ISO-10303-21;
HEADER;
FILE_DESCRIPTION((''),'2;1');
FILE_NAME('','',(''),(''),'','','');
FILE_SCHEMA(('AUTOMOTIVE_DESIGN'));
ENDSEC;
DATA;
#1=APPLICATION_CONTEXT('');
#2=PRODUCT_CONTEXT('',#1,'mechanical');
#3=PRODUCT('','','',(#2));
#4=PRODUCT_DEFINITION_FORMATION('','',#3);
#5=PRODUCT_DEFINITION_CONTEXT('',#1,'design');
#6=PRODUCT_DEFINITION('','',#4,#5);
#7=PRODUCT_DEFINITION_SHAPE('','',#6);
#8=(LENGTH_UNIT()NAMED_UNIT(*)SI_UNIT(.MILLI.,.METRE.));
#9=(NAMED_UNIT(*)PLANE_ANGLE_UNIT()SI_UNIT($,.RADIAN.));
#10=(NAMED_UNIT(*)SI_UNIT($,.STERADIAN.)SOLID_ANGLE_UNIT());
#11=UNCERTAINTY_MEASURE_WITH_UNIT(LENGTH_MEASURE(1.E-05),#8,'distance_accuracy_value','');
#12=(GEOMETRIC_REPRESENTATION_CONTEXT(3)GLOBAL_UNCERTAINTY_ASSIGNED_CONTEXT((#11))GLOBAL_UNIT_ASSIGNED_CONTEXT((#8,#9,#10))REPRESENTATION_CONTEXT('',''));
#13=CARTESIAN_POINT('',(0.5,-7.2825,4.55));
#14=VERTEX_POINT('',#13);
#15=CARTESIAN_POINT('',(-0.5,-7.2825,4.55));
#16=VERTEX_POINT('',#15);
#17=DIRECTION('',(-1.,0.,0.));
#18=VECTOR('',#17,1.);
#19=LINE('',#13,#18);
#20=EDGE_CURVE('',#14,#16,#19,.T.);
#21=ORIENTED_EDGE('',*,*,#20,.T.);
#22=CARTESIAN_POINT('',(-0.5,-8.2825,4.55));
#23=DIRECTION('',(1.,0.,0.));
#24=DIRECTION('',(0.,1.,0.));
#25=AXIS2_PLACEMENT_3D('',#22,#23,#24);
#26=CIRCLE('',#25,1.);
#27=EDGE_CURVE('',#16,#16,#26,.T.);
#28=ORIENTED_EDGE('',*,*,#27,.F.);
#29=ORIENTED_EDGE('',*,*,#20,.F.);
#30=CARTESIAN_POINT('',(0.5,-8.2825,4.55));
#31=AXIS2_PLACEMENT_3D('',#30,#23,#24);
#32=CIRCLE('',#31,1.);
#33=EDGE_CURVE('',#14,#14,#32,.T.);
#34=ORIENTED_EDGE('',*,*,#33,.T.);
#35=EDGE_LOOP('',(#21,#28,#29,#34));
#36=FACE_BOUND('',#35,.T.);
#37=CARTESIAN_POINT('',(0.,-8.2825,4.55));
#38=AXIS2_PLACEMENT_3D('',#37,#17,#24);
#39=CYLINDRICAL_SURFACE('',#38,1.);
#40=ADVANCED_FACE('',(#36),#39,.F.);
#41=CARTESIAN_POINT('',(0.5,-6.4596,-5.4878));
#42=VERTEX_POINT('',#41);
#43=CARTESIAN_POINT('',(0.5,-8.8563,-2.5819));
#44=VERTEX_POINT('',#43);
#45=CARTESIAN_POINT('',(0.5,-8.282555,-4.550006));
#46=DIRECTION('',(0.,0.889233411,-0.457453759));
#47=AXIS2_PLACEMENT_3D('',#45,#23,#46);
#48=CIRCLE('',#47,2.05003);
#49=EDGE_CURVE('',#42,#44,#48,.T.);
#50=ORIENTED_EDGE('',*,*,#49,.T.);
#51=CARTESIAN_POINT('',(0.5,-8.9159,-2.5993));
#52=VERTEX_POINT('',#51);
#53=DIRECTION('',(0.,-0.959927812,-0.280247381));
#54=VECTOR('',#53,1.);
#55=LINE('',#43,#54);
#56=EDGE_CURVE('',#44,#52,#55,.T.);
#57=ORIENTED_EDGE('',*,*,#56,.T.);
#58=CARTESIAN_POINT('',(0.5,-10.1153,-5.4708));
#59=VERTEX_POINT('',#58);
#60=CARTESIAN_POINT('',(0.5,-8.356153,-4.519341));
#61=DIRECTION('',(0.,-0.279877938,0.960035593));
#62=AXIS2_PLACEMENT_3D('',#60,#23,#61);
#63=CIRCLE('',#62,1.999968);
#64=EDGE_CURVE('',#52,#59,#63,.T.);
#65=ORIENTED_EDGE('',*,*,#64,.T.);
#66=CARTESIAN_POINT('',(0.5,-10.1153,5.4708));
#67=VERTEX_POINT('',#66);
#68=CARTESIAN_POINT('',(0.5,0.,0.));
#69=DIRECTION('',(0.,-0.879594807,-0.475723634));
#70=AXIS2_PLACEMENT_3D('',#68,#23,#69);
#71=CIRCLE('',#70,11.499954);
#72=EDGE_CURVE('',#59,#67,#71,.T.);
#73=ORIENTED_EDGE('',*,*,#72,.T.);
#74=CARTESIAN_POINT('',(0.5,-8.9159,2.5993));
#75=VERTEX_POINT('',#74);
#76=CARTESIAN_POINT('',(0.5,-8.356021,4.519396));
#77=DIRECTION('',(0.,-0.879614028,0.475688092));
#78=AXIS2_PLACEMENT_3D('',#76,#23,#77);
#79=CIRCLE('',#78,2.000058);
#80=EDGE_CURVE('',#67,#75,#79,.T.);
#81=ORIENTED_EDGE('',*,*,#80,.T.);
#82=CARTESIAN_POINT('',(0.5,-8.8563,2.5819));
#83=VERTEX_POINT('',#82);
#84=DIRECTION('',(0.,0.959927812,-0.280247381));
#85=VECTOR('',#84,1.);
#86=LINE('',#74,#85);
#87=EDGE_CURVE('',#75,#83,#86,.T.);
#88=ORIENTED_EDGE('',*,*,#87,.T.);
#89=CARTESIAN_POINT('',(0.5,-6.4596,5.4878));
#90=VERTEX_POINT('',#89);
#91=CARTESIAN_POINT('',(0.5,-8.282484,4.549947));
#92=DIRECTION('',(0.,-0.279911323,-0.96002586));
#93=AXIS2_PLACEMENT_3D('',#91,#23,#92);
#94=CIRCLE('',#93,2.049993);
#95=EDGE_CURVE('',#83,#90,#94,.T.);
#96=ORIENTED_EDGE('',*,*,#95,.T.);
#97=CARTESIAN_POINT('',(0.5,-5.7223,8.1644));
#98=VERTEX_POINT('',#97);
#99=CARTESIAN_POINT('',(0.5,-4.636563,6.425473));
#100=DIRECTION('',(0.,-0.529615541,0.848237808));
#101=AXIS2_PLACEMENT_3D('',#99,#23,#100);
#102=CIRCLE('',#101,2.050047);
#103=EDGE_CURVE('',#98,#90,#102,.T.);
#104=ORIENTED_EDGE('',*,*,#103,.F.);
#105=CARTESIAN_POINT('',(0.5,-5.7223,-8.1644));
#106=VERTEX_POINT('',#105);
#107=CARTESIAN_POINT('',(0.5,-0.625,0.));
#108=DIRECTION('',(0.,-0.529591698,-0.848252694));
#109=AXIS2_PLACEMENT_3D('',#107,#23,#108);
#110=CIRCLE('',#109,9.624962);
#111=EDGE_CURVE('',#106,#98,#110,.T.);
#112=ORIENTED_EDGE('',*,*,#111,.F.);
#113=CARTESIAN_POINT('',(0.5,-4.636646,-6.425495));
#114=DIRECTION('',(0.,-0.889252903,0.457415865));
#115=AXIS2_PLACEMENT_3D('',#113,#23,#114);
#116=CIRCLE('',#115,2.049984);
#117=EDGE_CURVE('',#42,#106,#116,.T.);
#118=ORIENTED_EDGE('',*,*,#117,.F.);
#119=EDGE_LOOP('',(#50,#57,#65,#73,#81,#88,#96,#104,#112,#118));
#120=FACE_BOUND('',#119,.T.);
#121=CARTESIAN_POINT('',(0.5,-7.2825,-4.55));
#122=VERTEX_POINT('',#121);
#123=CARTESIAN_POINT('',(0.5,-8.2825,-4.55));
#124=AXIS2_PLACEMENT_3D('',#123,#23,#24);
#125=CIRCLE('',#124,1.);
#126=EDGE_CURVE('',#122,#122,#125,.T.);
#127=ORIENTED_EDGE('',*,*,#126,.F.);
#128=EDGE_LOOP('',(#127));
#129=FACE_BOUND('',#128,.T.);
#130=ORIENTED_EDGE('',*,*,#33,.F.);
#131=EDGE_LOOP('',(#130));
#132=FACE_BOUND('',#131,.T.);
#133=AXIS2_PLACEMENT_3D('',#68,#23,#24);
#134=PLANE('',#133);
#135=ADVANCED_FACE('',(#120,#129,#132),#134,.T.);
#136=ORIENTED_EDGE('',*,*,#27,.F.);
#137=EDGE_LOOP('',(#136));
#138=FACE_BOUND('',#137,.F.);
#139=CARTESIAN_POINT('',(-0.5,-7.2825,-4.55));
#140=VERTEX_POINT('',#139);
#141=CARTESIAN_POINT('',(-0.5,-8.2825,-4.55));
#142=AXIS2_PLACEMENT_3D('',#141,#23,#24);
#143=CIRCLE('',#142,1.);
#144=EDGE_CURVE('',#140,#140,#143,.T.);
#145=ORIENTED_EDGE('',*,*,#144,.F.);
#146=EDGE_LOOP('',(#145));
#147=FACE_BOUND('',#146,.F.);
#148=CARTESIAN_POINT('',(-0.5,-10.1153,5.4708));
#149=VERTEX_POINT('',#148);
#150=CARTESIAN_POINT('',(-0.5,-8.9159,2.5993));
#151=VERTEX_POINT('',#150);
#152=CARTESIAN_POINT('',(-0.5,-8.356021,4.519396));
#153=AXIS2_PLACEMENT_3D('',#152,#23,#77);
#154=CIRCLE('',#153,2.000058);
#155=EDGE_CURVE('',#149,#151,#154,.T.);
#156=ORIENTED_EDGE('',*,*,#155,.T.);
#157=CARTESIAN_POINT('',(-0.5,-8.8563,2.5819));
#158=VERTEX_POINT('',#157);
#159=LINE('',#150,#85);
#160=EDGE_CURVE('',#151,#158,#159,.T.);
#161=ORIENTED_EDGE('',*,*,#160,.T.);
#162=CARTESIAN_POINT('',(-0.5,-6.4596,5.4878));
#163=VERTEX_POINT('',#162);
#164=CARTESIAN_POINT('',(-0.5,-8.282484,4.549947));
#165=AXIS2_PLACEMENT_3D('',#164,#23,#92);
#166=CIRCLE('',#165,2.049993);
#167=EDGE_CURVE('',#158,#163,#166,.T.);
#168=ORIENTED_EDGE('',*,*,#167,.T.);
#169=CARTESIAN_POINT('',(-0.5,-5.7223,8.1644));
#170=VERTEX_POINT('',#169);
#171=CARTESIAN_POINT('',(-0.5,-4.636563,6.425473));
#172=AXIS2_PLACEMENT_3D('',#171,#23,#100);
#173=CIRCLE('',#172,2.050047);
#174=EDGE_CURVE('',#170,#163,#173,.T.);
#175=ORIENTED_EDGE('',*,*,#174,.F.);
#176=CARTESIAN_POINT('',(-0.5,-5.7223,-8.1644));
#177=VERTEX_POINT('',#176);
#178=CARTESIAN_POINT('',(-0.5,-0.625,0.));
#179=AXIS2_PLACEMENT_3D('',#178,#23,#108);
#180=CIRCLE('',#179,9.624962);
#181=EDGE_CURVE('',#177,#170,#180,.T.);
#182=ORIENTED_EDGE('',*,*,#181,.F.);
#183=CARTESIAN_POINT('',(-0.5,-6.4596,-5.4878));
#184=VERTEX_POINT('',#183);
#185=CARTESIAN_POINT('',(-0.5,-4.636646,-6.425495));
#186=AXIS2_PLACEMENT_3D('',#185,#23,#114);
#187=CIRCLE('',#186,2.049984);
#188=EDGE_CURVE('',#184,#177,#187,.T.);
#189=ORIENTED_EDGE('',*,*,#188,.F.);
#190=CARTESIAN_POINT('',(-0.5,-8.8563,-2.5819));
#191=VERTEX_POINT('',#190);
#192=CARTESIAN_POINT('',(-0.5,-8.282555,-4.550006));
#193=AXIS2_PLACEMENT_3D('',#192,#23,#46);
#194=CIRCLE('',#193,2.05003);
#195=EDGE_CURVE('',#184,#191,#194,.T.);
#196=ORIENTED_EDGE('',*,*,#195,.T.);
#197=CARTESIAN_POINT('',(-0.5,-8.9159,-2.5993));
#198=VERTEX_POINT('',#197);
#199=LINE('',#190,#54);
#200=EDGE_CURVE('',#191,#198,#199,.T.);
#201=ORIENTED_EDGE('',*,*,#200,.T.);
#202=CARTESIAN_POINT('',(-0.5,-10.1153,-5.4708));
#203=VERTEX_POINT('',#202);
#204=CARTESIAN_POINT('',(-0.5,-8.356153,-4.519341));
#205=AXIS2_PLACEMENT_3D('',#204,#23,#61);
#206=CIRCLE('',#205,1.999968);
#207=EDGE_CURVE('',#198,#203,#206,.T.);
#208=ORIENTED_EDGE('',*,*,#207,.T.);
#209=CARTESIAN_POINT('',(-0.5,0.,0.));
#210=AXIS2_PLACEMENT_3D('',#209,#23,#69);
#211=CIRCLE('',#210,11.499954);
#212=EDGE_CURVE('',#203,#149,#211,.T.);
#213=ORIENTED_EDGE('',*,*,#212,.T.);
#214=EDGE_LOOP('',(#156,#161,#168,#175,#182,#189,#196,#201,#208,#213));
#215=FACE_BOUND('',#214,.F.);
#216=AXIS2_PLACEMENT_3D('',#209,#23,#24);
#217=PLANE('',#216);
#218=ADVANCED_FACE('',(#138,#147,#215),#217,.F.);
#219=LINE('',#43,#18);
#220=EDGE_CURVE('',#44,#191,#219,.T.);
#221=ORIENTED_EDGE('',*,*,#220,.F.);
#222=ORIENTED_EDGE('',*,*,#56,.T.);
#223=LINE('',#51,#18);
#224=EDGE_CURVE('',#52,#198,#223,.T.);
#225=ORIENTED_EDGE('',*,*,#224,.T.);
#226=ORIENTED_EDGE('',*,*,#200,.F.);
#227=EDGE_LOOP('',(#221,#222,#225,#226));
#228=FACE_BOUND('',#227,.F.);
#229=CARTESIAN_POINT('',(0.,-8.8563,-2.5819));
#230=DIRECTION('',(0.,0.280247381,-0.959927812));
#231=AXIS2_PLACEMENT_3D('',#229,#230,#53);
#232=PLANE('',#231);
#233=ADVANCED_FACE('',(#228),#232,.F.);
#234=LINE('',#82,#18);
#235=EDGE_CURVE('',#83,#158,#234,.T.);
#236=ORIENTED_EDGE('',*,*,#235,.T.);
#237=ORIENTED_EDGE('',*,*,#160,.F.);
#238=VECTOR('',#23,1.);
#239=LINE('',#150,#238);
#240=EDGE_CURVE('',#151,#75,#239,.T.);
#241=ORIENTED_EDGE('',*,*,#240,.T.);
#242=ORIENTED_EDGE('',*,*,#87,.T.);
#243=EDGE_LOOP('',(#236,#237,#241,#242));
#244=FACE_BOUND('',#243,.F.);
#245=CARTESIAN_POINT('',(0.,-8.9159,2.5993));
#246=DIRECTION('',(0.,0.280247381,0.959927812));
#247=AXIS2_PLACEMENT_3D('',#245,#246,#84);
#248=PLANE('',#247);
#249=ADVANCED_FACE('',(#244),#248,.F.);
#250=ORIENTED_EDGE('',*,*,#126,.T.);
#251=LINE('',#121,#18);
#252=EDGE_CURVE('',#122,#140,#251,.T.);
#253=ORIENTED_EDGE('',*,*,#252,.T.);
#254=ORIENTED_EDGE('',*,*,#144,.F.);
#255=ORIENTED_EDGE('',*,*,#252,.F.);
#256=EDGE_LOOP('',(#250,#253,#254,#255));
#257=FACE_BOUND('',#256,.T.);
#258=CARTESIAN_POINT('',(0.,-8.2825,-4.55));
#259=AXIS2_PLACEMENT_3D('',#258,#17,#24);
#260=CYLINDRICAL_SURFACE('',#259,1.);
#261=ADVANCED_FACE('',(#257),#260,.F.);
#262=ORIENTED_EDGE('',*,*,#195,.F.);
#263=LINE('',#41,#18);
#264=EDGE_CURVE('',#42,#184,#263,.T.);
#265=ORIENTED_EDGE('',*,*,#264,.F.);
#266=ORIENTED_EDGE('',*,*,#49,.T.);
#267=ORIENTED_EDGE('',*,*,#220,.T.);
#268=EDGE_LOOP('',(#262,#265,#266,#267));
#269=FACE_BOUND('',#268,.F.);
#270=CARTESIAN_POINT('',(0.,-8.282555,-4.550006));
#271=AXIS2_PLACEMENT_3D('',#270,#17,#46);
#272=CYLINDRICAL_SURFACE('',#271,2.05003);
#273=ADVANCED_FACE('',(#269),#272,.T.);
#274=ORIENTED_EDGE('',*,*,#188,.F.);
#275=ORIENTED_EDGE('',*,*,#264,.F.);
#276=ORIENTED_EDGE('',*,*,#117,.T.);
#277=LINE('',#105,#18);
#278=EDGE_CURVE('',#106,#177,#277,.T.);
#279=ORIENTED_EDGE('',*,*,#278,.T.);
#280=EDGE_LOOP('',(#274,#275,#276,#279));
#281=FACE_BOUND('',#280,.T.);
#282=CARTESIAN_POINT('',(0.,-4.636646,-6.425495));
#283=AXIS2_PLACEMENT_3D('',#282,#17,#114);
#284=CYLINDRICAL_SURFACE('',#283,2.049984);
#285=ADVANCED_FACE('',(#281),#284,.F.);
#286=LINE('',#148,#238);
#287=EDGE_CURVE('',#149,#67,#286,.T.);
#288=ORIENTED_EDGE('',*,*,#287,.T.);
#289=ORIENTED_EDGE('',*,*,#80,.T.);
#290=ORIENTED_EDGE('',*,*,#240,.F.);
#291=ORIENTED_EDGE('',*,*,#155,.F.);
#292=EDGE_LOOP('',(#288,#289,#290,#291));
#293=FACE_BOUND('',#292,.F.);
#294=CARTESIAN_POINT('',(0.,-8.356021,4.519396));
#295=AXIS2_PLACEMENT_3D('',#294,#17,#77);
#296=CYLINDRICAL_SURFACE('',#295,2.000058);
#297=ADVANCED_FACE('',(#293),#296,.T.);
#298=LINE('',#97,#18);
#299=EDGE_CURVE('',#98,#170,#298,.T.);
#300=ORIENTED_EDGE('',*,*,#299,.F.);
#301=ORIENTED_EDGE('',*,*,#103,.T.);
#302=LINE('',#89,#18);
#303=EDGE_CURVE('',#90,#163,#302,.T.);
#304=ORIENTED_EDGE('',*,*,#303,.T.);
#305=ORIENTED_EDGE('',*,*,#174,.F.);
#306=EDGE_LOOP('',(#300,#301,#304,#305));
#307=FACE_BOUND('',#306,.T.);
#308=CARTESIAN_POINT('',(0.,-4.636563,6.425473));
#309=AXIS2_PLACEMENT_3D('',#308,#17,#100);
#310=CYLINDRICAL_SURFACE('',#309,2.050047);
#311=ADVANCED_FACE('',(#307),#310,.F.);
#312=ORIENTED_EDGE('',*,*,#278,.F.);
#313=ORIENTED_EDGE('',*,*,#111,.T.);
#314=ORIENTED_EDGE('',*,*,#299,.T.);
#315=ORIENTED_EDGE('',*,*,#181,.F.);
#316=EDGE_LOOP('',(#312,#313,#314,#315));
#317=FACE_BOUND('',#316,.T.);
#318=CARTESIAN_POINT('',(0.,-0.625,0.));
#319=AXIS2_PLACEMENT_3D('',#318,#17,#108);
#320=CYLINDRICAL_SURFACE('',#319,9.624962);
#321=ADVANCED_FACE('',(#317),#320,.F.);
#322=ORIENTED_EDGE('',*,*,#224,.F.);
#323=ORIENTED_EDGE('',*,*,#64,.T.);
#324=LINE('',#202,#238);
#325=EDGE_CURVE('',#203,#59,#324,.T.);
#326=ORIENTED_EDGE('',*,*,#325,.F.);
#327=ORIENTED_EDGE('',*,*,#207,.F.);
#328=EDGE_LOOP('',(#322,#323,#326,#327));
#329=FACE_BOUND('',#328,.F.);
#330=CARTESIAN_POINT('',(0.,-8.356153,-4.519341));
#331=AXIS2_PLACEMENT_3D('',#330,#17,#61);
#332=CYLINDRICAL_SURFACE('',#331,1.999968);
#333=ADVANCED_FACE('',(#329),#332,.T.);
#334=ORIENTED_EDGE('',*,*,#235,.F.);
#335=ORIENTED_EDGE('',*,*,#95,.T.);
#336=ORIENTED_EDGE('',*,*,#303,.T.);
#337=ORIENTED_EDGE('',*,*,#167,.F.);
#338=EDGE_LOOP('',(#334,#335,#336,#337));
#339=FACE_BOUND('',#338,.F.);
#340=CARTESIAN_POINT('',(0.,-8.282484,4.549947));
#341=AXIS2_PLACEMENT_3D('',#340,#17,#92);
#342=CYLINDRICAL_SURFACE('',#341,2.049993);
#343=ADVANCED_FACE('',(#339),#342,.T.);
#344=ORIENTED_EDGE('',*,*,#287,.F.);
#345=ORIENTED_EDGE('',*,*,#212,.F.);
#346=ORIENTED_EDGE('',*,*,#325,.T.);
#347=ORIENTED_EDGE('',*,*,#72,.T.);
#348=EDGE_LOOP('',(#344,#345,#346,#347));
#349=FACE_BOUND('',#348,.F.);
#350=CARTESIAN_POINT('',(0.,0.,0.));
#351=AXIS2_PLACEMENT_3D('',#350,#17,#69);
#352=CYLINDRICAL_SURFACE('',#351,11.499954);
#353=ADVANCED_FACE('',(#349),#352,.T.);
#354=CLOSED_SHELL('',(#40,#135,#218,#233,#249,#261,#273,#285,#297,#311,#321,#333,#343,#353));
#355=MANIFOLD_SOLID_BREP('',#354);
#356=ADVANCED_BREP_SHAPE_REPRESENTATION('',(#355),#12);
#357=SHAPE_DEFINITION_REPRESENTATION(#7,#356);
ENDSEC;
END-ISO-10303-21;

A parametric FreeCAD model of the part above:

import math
import FreeCAD as App
import Part
import Sketcher
Q = App.Units.Quantity

doc = App.newDocument("Part")
params = doc.addObject("Spreadsheet::Sheet", "Params")
for row, (alias, value) in enumerate([
    ("sketch1_diameter", "2 mm"),
    ("sketch1_radius", "2 mm"),
    ("sketch1_radius2", "11.5 mm"),
    ("sketch1_radius3", "2.05 mm"),
    ("sketch1_height", "1.92 mm"),
    ("pad1_length", "1 mm"),
], start=1):
    params.set(f"A{row}", alias)
    params.set(f"B{row}", "=" + value)
    params.setAlias(f"B{row}", alias)

body = doc.addObject("PartDesign::Body", "Body")

sketch1 = body.newObject("Sketcher::SketchObject", "Sketch")
sketch1.AttachmentSupport = (doc.getObject("YZ_Plane"), [""])
sketch1.MapMode = "FlatFace"
sketch1.addGeometry(Part.ArcOfCircle(Part.Circle(App.Vector(-8.36, -4.52, 0), App.Vector(0, 0, 1), 2), math.radians(106), math.radians(208)), False)
sketch1.addGeometry(Part.ArcOfCircle(Part.Circle(App.Vector(0, 0, 0), App.Vector(0, 0, 1), 11.5), math.radians(-152), math.radians(152)), False)
sketch1.addGeometry(Part.ArcOfCircle(Part.Circle(App.Vector(-8.36, 4.52, 0), App.Vector(0, 0, 1), 2), math.radians(152), math.radians(254)), False)
sketch1.addGeometry(Part.LineSegment(App.Vector(-8.92, 2.6, 0), App.Vector(-8.86, 2.58, 0)), False)
sketch1.addGeometry(Part.ArcOfCircle(Part.Circle(App.Vector(-8.28, 4.55, 0), App.Vector(0, 0, 1), 2.05), math.radians(-106), math.radians(27)), False)
sketch1.addGeometry(Part.ArcOfCircle(Part.Circle(App.Vector(-4.64, 6.43, 0), App.Vector(0, 0, 1), 2.05), math.radians(122), math.radians(207)), False)
sketch1.addGeometry(Part.ArcOfCircle(Part.Circle(App.Vector(-0.62, 0, 0), App.Vector(0, 0, 1), 9.62), math.radians(-122), math.radians(122)), False)
sketch1.addGeometry(Part.ArcOfCircle(Part.Circle(App.Vector(-4.64, -6.43, 0), App.Vector(0, 0, 1), 2.05), math.radians(153), math.radians(238)), False)
sketch1.addGeometry(Part.ArcOfCircle(Part.Circle(App.Vector(-8.28, -4.55, 0), App.Vector(0, 0, 1), 2.05), math.radians(-27), math.radians(106)), False)
sketch1.addGeometry(Part.LineSegment(App.Vector(-8.86, -2.58, 0), App.Vector(-8.92, -2.6, 0)), False)
sketch1.addGeometry(Part.Circle(App.Vector(-8.28, -4.55, 0), App.Vector(0, 0, 1), 1), False)
sketch1.addGeometry(Part.Circle(App.Vector(-8.28, 4.55, 0), App.Vector(0, 0, 1), 1), False)
sketch1.addConstraint(Sketcher.Constraint("Tangent", 0, 2, 1, 1))
sketch1.addConstraint(Sketcher.Constraint("Tangent", 1, 2, 2, 1))
sketch1.addConstraint(Sketcher.Constraint("Tangent", 2, 2, 3, 1))
sketch1.addConstraint(Sketcher.Constraint("Tangent", 3, 2, 4, 1))
sketch1.addConstraint(Sketcher.Constraint("Tangent", 4, 2, 5, 2))
sketch1.addConstraint(Sketcher.Constraint("Tangent", 5, 1, 6, 2))
sketch1.addConstraint(Sketcher.Constraint("Tangent", 6, 1, 7, 2))
sketch1.addConstraint(Sketcher.Constraint("Tangent", 7, 1, 8, 1))
sketch1.addConstraint(Sketcher.Constraint("Tangent", 8, 2, 9, 1))
sketch1.addConstraint(Sketcher.Constraint("Tangent", 9, 2, 0, 1))
sketch1.addConstraint(Sketcher.Constraint("Coincident", 1, 3, -1, 1))
sketch1.addConstraint(Sketcher.Constraint("Coincident", 10, 3, 8, 3))
sketch1.addConstraint(Sketcher.Constraint("Coincident", 11, 3, 4, 3))
sketch1.addConstraint(Sketcher.Constraint("Equal", 0, 2))
sketch1.addConstraint(Sketcher.Constraint("Equal", 4, 5))
sketch1.addConstraint(Sketcher.Constraint("Equal", 5, 7))
sketch1.addConstraint(Sketcher.Constraint("Equal", 7, 8))
sketch1.addConstraint(Sketcher.Constraint("Equal", 10, 11))
sketch1.addConstraint(Sketcher.Constraint("Symmetric", 5, 3, 7, 3, -1))
sketch1.addConstraint(Sketcher.Constraint("Symmetric", 3, 2, 8, 2, -1))
sketch1.addConstraint(Sketcher.Constraint("Diameter", 10, Q("2 mm")))
sketch1.addConstraint(Sketcher.Constraint("Radius", 0, Q("2 mm")))
sketch1.addConstraint(Sketcher.Constraint("Radius", 1, Q("11.5 mm")))
sketch1.addConstraint(Sketcher.Constraint("Radius", 4, Q("2.05 mm")))
sketch1.addConstraint(Sketcher.Constraint("Radius", 6, Q("9.625 mm")))
sketch1.addConstraint(Sketcher.Constraint("DistanceY", 8, 3, 4, 3, Q("9.1 mm")))
sketch1.addConstraint(Sketcher.Constraint("DistanceY", 2, 2, 2, 3, Q("1.92 mm")))
sketch1.addConstraint(Sketcher.Constraint("Distance", 3, Q("0.062 mm")))
sketch1.addConstraint(Sketcher.Constraint("DistanceX", 6, 3, -1, 1, Q("0.625 mm")))
sketch1.setExpression("Constraints[20]", "Params.sketch1_diameter")
sketch1.setExpression("Constraints[21]", "Params.sketch1_radius")
sketch1.setExpression("Constraints[22]", "Params.sketch1_radius2")
sketch1.setExpression("Constraints[23]", "Params.sketch1_radius3")
sketch1.setExpression("Constraints[26]", "Params.sketch1_height")
pad1 = body.newObject("PartDesign::Pad", "Pad")
pad1.Profile = sketch1
pad1.setExpression("Length", "Params.pad1_length")
pad1.Midplane = True

doc.recompute()
